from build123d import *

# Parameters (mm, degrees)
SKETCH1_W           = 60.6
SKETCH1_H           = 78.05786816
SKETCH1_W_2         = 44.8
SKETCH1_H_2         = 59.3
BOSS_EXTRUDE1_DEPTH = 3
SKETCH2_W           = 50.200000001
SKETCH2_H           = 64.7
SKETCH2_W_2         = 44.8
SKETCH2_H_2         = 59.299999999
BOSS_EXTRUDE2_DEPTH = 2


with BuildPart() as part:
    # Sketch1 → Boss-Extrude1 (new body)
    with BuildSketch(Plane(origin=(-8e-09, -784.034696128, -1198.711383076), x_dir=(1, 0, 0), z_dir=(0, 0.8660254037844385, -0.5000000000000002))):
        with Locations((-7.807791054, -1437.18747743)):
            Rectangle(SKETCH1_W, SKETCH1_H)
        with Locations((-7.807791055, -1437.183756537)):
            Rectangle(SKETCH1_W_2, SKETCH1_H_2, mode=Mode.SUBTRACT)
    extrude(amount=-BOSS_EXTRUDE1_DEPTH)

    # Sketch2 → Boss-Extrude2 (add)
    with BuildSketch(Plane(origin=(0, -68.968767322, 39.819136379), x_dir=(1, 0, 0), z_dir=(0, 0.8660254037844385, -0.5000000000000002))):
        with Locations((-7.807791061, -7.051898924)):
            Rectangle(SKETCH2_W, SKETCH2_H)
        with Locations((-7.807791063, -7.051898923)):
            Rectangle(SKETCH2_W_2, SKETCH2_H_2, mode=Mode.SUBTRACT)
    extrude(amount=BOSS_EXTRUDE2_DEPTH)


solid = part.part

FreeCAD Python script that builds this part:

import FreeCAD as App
import Part
import Sketcher

V = App.Vector

doc = App.newDocument("Part")
body = doc.addObject("PartDesign::Body", "Body")

sketch1 = body.newObject("Sketcher::SketchObject", "Sketch")
sketch1.Placement = App.Placement(V(0, -784.034696, -1198.711383), App.Rotation(V(1, 0, 0), V(0, -0.5, -0.866025404), V(0, 0.866025404, -0.5), "ZXY"))
sketch1.addGeometry(Part.LineSegment(V(-38, -1398, 0), V(-38, -1476, 0)), False)
sketch1.addGeometry(Part.LineSegment(V(-38, -1476, 0), V(22, -1476, 0)), False)
sketch1.addGeometry(Part.LineSegment(V(22, -1476, 0), V(22, -1398, 0)), False)
sketch1.addGeometry(Part.LineSegment(V(22, -1398, 0), V(-38, -1398, 0)), False)
sketch1.addGeometry(Part.LineSegment(V(15, -1467, 0), V(-30, -1467, 0)), False)
sketch1.addGeometry(Part.LineSegment(V(-30, -1467, 0), V(-30, -1408, 0)), False)
sketch1.addGeometry(Part.LineSegment(V(-30, -1408, 0), V(15, -1408, 0)), False)
sketch1.addGeometry(Part.LineSegment(V(15, -1408, 0), V(15, -1467, 0)), False)
sketch1.addConstraint(Sketcher.Constraint("Coincident", 0, 2, 1, 1))
sketch1.addConstraint(Sketcher.Constraint("Coincident", 1, 2, 2, 1))
sketch1.addConstraint(Sketcher.Constraint("Coincident", 2, 2, 3, 1))
sketch1.addConstraint(Sketcher.Constraint("Coincident", 3, 2, 0, 1))
sketch1.addConstraint(Sketcher.Constraint("Coincident", 4, 2, 5, 1))
sketch1.addConstraint(Sketcher.Constraint("Coincident", 5, 2, 6, 1))
sketch1.addConstraint(Sketcher.Constraint("Coincident", 6, 2, 7, 1))
sketch1.addConstraint(Sketcher.Constraint("Coincident", 7, 2, 4, 1))
sketch1.addConstraint(Sketcher.Constraint("Vertical", 0))
sketch1.addConstraint(Sketcher.Constraint("Horizontal", 1))
sketch1.addConstraint(Sketcher.Constraint("Vertical", 2))
sketch1.addConstraint(Sketcher.Constraint("Horizontal", 3))
sketch1.addConstraint(Sketcher.Constraint("Horizontal", 4))
sketch1.addConstraint(Sketcher.Constraint("Vertical", 5))
sketch1.addConstraint(Sketcher.Constraint("Horizontal", 6))
sketch1.addConstraint(Sketcher.Constraint("Vertical", 7))
sketch1.addConstraint(Sketcher.Constraint("DistanceX", 1, 1, 1, 2, 60.6))
sketch1.addConstraint(Sketcher.Constraint("DistanceX", 4, 2, 4, 1, 44.8))
sketch1.addConstraint(Sketcher.Constraint("DistanceY", 5, 1, 5, 2, 59.3))
sketch1.addConstraint(Sketcher.Constraint("DistanceX", 0, 2, 4, 2, 7.9))
sketch1.addConstraint(Sketcher.Constraint("DistanceY", 0, 2, 0, 1, 78.057868))
sketch1.addConstraint(Sketcher.Constraint("DistanceX", 0, 2, -1, 1, 38.107791))
sketch1.addConstraint(Sketcher.Constraint("DistanceY", 0, 2, -1, 1, 1476.216412))
sketch1.addConstraint(Sketcher.Constraint("DistanceY", 4, 2, -1, 1, 1466.833757))
pad1 = body.newObject("PartDesign::Pad", "Pad")
pad1.Profile = sketch1
pad1.Length = 3
pad1.Reversed = True

sketch2 = body.newObject("Sketcher::SketchObject", "Sketch001")
sketch2.Placement = App.Placement(V(0, -68.968767, 39.819136), App.Rotation(V(1, 0, 0), V(0, -0.5, -0.866025404), V(0, 0.866025404, -0.5), "ZXY"))
sketch2.addGeometry(Part.LineSegment(V(-33, 25, 0), V(-33, -39, 0)), False)
sketch2.addGeometry(Part.LineSegment(V(-33, -39, 0), V(17, -39, 0)), False)
sketch2.addGeometry(Part.LineSegment(V(17, -39, 0), V(17, 25, 0)), False)
sketch2.addGeometry(Part.LineSegment(V(17, 25, 0), V(-33, 25, 0)), False)
sketch2.addGeometry(Part.LineSegment(V(15, -37, 0), V(-30, -37, 0)), False)
sketch2.addGeometry(Part.LineSegment(V(-30, -37, 0), V(-30, 23, 0)), False)
sketch2.addGeometry(Part.LineSegment(V(-30, 23, 0), V(15, 23, 0)), False)
sketch2.addGeometry(Part.LineSegment(V(15, 23, 0), V(15, -37, 0)), False)
sketch2.addConstraint(Sketcher.Constraint("Coincident", 0, 2, 1, 1))
sketch2.addConstraint(Sketcher.Constraint("Coincident", 1, 2, 2, 1))
sketch2.addConstraint(Sketcher.Constraint("Coincident", 2, 2, 3, 1))
sketch2.addConstraint(Sketcher.Constraint("Coincident", 3, 2, 0, 1))
sketch2.addConstraint(Sketcher.Constraint("Coincident", 4, 2, 5, 1))
sketch2.addConstraint(Sketcher.Constraint("Coincident", 5, 2, 6, 1))
sketch2.addConstraint(Sketcher.Constraint("Coincident", 6, 2, 7, 1))
sketch2.addConstraint(Sketcher.Constraint("Coincident", 7, 2, 4, 1))
sketch2.addConstraint(Sketcher.Constraint("Vertical", 0))
sketch2.addConstraint(Sketcher.Constraint("Horizontal", 1))
sketch2.addConstraint(Sketcher.Constraint("Vertical", 2))
sketch2.addConstraint(Sketcher.Constraint("Horizontal", 3))
sketch2.addConstraint(Sketcher.Constraint("Horizontal", 4))
sketch2.addConstraint(Sketcher.Constraint("Vertical", 5))
sketch2.addConstraint(Sketcher.Constraint("Horizontal", 6))
sketch2.addConstraint(Sketcher.Constraint("Vertical", 7))
sketch2.addConstraint(Sketcher.Constraint("DistanceX", 1, 1, 1, 2, 50.2))
sketch2.addConstraint(Sketcher.Constraint("DistanceX", 4, 2, 4, 1, 44.8))
sketch2.addConstraint(Sketcher.Constraint("DistanceY", 0, 2, 0, 1, 64.7))
sketch2.addConstraint(Sketcher.Constraint("DistanceY", 5, 1, 5, 2, 59.3))
sketch2.addConstraint(Sketcher.Constraint("DistanceY", 4, 2, 3, 2, 62.0))
sketch2.addConstraint(Sketcher.Constraint("DistanceX", 0, 2, 4, 2, 2.7))
sketch2.addConstraint(Sketcher.Constraint("DistanceY", 0, 2, -1, 1, 39.401899))
sketch2.addConstraint(Sketcher.Constraint("DistanceX", 0, 2, -1, 1, 32.907791))
pad2 = body.newObject("PartDesign::Pad", "Pad001")
pad2.Profile = sketch2
pad2.Length = 2

doc.recompute()
